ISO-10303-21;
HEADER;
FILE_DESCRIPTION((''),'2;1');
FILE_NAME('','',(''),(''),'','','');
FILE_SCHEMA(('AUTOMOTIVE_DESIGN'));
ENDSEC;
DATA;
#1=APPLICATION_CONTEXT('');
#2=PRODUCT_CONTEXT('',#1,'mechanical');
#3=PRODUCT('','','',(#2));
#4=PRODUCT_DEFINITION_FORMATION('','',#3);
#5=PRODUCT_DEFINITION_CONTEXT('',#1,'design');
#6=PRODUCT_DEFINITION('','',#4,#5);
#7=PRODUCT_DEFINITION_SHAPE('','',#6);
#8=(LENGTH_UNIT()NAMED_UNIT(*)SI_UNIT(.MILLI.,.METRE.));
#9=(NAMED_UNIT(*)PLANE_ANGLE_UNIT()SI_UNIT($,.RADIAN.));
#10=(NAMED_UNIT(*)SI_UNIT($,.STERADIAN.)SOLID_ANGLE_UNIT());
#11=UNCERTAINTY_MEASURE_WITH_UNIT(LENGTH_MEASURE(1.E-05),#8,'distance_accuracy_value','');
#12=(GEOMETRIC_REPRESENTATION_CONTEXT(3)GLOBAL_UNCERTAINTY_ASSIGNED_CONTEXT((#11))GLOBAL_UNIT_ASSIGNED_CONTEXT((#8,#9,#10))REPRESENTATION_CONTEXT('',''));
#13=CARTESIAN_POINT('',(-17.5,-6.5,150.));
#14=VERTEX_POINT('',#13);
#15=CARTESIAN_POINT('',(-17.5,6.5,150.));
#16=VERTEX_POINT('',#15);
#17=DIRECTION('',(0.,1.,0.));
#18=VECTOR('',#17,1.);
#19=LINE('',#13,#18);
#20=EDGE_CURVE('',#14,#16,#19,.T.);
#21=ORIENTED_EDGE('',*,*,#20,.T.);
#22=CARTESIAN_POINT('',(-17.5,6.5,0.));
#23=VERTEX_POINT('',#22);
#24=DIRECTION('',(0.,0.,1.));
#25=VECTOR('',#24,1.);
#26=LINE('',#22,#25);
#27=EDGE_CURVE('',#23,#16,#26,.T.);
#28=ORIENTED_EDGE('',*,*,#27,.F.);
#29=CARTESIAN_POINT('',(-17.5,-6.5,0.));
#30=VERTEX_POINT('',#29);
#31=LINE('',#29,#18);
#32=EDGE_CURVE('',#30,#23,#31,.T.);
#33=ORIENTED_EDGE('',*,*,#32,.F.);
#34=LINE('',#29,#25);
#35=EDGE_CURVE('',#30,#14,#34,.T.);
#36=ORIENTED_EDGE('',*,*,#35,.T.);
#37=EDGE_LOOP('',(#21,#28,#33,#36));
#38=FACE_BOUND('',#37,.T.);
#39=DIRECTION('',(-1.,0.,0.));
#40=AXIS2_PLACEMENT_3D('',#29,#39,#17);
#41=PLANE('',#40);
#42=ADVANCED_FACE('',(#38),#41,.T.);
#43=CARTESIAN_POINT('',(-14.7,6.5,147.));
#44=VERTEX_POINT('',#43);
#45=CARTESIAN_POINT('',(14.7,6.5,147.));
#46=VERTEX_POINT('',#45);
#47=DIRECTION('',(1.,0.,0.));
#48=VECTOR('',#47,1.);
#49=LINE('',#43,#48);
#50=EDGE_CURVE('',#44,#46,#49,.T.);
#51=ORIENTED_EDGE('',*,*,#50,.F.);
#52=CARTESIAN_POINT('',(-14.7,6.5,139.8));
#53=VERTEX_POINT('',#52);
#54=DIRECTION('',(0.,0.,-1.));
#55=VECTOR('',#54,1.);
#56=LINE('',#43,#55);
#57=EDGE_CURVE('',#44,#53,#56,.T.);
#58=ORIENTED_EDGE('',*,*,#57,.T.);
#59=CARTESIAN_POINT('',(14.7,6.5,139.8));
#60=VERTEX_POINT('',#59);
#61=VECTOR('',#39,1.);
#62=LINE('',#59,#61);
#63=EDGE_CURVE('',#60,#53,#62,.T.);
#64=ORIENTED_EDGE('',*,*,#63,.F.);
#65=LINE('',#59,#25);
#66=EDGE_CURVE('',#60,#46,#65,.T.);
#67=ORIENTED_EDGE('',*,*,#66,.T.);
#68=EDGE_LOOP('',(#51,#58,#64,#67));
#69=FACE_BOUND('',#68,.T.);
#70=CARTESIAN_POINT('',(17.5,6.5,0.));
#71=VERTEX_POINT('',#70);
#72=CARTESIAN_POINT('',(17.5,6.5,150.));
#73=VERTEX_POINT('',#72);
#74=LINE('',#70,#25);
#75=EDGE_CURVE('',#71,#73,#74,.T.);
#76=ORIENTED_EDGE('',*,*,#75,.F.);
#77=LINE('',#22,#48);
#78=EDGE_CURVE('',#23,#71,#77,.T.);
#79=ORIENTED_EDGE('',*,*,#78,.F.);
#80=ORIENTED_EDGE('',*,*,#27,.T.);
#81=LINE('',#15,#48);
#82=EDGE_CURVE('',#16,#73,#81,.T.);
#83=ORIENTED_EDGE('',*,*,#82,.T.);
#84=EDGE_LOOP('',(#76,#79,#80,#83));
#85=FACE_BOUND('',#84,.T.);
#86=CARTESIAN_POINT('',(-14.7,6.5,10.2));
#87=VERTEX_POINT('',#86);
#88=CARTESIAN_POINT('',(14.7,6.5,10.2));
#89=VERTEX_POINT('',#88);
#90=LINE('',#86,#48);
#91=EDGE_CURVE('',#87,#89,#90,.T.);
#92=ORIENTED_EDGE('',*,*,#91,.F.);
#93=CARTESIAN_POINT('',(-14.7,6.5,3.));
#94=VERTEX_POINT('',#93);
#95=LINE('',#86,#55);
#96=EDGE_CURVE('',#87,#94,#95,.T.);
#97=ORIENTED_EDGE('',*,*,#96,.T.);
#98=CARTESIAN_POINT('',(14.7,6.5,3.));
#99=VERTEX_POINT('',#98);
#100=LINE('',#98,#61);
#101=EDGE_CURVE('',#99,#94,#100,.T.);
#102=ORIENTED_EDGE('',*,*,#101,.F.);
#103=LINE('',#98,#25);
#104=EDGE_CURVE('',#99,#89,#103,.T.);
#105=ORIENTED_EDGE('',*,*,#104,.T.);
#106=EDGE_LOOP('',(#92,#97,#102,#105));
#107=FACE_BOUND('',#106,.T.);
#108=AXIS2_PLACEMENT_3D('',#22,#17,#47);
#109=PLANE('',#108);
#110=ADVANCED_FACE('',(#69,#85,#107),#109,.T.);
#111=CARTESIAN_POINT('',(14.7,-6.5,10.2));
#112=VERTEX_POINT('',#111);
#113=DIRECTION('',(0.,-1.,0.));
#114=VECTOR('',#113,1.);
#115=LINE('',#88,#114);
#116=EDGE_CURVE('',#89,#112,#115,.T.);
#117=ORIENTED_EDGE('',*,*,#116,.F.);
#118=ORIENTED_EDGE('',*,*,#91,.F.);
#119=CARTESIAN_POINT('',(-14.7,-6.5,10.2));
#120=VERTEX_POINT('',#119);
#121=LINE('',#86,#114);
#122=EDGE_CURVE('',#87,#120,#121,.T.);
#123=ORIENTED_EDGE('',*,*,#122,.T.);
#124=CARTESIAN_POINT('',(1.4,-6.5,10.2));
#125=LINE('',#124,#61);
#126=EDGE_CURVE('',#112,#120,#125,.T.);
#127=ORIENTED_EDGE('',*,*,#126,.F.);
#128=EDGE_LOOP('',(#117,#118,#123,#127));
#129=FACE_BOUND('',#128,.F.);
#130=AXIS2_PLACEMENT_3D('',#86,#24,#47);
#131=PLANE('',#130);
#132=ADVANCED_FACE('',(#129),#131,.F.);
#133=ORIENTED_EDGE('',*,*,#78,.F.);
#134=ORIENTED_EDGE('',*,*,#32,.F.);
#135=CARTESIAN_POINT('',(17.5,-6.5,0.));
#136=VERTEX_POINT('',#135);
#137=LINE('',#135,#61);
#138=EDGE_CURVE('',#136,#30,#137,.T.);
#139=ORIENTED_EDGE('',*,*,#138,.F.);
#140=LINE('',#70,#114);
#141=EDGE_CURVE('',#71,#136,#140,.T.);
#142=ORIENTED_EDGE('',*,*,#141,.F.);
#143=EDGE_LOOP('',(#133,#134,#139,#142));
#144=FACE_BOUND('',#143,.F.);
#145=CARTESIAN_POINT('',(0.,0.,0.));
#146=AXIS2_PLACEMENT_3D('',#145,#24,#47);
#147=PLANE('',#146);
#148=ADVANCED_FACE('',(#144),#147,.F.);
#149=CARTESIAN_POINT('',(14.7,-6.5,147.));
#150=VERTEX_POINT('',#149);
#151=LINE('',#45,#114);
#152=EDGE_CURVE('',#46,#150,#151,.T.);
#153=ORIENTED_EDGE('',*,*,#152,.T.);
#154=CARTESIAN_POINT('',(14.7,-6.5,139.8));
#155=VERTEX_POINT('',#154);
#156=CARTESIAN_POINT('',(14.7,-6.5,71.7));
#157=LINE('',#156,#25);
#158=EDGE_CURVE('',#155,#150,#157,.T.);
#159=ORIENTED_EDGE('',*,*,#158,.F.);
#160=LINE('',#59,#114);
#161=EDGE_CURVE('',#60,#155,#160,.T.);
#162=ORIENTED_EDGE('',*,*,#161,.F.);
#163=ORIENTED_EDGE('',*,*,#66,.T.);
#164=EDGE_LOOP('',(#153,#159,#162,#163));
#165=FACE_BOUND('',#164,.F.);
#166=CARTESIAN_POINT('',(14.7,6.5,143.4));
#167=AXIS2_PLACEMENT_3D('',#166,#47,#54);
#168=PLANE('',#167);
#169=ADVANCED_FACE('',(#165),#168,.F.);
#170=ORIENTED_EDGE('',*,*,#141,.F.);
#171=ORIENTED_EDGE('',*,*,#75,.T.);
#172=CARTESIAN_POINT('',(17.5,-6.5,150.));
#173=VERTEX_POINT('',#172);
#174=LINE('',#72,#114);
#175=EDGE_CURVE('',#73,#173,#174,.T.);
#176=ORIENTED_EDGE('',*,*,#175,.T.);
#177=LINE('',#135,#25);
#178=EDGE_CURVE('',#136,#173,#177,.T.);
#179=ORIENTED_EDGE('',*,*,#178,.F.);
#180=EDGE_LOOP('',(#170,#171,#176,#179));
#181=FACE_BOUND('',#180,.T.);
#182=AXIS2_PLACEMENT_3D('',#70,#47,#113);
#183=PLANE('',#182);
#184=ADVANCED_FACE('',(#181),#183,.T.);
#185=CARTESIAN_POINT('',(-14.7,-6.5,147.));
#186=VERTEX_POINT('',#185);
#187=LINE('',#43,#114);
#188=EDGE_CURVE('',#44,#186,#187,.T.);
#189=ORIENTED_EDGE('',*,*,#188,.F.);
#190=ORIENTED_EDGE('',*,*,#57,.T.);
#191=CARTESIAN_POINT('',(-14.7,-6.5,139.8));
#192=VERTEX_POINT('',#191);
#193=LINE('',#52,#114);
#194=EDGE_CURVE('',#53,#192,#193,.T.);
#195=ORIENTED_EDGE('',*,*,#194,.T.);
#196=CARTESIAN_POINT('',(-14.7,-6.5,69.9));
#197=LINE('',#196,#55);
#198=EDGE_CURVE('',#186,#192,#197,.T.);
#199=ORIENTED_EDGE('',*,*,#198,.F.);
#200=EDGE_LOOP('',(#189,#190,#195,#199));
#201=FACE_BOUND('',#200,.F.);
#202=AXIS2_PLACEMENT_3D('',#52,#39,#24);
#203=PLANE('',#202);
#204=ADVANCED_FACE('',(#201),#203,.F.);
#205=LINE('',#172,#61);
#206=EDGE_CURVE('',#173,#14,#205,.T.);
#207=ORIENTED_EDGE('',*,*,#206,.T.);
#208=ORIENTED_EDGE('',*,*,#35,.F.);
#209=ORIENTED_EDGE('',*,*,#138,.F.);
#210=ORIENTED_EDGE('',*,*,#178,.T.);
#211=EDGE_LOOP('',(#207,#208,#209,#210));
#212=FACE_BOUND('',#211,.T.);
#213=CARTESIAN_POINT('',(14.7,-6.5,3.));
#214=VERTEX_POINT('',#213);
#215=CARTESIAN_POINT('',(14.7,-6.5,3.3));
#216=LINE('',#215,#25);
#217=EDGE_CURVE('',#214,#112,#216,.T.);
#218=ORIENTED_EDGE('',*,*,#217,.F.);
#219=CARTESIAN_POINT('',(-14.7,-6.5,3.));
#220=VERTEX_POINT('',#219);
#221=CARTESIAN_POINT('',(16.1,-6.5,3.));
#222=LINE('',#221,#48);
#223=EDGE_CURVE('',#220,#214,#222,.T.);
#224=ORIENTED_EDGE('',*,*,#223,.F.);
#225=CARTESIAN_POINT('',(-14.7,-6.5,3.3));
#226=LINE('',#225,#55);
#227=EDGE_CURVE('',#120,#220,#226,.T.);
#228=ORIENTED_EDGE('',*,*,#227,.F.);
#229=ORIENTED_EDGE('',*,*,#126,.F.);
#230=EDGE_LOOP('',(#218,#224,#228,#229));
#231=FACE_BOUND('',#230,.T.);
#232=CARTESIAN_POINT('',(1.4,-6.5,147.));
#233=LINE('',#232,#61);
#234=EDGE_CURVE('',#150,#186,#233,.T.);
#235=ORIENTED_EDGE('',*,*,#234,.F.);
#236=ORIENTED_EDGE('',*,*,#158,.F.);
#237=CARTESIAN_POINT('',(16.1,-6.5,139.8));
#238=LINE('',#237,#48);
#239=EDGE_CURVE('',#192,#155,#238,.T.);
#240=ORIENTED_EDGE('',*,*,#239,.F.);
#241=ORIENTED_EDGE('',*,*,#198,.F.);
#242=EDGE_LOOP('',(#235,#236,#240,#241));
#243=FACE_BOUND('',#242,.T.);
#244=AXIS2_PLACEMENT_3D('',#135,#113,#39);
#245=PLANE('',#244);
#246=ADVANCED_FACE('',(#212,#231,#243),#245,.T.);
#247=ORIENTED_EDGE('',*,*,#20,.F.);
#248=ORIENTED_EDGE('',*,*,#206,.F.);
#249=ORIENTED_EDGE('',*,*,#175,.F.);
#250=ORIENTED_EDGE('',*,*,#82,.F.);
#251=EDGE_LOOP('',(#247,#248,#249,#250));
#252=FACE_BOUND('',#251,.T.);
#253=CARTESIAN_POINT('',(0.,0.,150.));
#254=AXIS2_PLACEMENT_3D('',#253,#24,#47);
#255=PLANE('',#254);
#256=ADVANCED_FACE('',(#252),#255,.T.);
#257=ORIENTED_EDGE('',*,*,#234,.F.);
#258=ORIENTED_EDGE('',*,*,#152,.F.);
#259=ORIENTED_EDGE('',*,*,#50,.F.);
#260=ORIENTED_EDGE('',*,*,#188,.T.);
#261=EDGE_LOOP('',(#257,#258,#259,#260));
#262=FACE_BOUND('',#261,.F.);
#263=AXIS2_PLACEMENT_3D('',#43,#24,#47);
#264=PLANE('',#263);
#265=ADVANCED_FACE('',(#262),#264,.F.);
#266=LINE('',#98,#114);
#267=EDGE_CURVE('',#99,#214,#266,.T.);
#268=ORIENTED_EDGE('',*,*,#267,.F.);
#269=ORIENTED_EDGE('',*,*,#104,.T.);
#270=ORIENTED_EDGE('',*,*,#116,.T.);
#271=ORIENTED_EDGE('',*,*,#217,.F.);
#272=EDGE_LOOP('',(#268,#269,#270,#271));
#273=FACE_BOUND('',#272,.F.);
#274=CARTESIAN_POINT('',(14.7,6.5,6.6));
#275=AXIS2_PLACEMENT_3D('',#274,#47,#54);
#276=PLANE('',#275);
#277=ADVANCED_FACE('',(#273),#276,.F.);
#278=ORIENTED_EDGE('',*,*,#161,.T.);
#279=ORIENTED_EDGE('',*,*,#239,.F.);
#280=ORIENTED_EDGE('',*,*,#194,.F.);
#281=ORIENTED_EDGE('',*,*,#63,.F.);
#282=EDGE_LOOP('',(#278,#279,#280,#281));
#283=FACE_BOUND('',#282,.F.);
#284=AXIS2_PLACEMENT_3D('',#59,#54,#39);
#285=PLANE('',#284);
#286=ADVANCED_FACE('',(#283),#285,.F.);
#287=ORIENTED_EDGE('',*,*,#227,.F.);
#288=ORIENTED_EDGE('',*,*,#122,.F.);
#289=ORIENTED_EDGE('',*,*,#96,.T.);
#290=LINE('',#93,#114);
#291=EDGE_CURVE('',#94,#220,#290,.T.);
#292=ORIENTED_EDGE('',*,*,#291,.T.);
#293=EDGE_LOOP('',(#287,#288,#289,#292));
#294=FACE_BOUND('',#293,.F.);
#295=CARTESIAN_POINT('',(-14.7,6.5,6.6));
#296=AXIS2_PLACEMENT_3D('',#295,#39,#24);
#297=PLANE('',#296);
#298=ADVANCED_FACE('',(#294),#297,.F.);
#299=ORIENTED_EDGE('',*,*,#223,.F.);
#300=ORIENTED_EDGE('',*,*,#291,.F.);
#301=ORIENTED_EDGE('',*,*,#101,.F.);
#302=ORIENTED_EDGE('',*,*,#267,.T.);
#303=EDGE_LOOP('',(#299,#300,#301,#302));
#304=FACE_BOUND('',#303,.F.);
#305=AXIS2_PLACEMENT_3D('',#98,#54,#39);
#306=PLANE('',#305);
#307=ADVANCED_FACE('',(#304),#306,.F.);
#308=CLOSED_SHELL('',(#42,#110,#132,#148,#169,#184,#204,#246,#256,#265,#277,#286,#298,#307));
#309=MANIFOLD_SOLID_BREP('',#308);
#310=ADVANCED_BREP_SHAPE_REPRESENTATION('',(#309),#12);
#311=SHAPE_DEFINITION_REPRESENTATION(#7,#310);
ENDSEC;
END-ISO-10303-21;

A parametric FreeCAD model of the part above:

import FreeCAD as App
import Part
import Sketcher
from FreeCAD import Vector

doc = App.newDocument("Part")
body = doc.addObject("PartDesign::Body", "Body")

# Sketch on XY plane
sketch1 = body.newObject("Sketcher::SketchObject", "Sketch")
sketch1.AttachmentSupport = (doc.getObject("XY_Plane"), [""])
sketch1.MapMode = "FlatFace"
sketch1.addGeometry(Part.LineSegment(Vector(18, 6, 0), Vector(-18, 6, 0)), False)
sketch1.addGeometry(Part.LineSegment(Vector(-18, 6, 0), Vector(-18, -6, 0)), False)
sketch1.addGeometry(Part.LineSegment(Vector(-18, -6, 0), Vector(18, -6, 0)), False)
sketch1.addGeometry(Part.LineSegment(Vector(18, -6, 0), Vector(18, 6, 0)), False)
sketch1.addConstraint(Sketcher.Constraint("Coincident", 0, 2, 1, 1))
sketch1.addConstraint(Sketcher.Constraint("Coincident", 1, 2, 2, 1))
sketch1.addConstraint(Sketcher.Constraint("Coincident", 2, 2, 3, 1))
sketch1.addConstraint(Sketcher.Constraint("Coincident", 3, 2, 0, 1))
sketch1.addConstraint(Sketcher.Constraint("Horizontal", 0))
sketch1.addConstraint(Sketcher.Constraint("Vertical", 1))
sketch1.addConstraint(Sketcher.Constraint("Horizontal", 2))
sketch1.addConstraint(Sketcher.Constraint("Vertical", 3))
sketch1.addConstraint(Sketcher.Constraint("Symmetric", 0, 2, 2, 2, -1, 1))
sketch1.addConstraint(Sketcher.Constraint("DistanceX", 0, 2, 0, 1, 35.0))
sketch1.addConstraint(Sketcher.Constraint("DistanceY", 1, 2, 1, 1, 13.0))
pad1 = body.newObject("PartDesign::Pad", "Pad")
pad1.Profile = sketch1
pad1.Length = 150

# Sketch on XZ plane
sketch2 = body.newObject("Sketcher::SketchObject", "Sketch001")
sketch2.AttachmentSupport = (doc.getObject("XZ_Plane"), [""])
sketch2.MapMode = "FlatFace"
sketch2.AttachmentOffset = App.Placement(Vector(0, 0, -6.5), App.Rotation())
sketch2.addGeometry(Part.LineSegment(Vector(-15, 3, 0), Vector(-15, 10, 0)), False)
sketch2.addGeometry(Part.LineSegment(Vector(-15, 10, 0), Vector(15, 10, 0)), False)
sketch2.addGeometry(Part.LineSegment(Vector(15, 10, 0), Vector(15, 3, 0)), False)
sketch2.addGeometry(Part.LineSegment(Vector(15, 3, 0), Vector(-15, 3, 0)), False)
sketch2.addGeometry(Part.LineSegment(Vector(-15, 140, 0), Vector(-15, 147, 0)), False)
sketch2.addGeometry(Part.LineSegment(Vector(-15, 147, 0), Vector(15, 147, 0)), False)
sketch2.addGeometry(Part.LineSegment(Vector(15, 147, 0), Vector(15, 140, 0)), False)
sketch2.addGeometry(Part.LineSegment(Vector(15, 140, 0), Vector(-15, 140, 0)), False)
sketch2.addConstraint(Sketcher.Constraint("Coincident", 0, 2, 1, 1))
sketch2.addConstraint(Sketcher.Constraint("Coincident", 1, 2, 2, 1))
sketch2.addConstraint(Sketcher.Constraint("Coincident", 2, 2, 3, 1))
sketch2.addConstraint(Sketcher.Constraint("Coincident", 3, 2, 0, 1))
sketch2.addConstraint(Sketcher.Constraint("Coincident", 4, 2, 5, 1))
sketch2.addConstraint(Sketcher.Constraint("Coincident", 5, 2, 6, 1))
sketch2.addConstraint(Sketcher.Constraint("Coincident", 6, 2, 7, 1))
sketch2.addConstraint(Sketcher.Constraint("Coincident", 7, 2, 4, 1))
sketch2.addConstraint(Sketcher.Constraint("Vertical", 0))
sketch2.addConstraint(Sketcher.Constraint("Horizontal", 1))
sketch2.addConstraint(Sketcher.Constraint("Vertical", 2))
sketch2.addConstraint(Sketcher.Constraint("Horizontal", 3))
sketch2.addConstraint(Sketcher.Constraint("Vertical", 4))
sketch2.addConstraint(Sketcher.Constraint("Horizontal", 5))
sketch2.addConstraint(Sketcher.Constraint("Vertical", 6))
sketch2.addConstraint(Sketcher.Constraint("Horizontal", 7))
sketch2.addConstraint(Sketcher.Constraint("Vertical", 3, 2, 4, 2))
sketch2.addConstraint(Sketcher.Constraint("Vertical", 2, 2, 5, 2))
sketch2.addConstraint(Sketcher.Constraint("Equal", 2, 4))
sketch2.addConstraint(Sketcher.Constraint("DistanceX", 1, 1, 1, 2, 29.4))
sketch2.addConstraint(Sketcher.Constraint("DistanceY", 0, 1, 0, 2, 7.2))
sketch2.addConstraint(Sketcher.Constraint("DistanceY", -1, 1, 2, 2, 3.0))
sketch2.addConstraint(Sketcher.Constraint("DistanceY", -1, 1, 4, 2, 147.0))
sketch2.addConstraint(Sketcher.Constraint("DistanceX", 0, 2, -1, 1, 14.7))
pocket1 = body.newObject("PartDesign::Pocket", "Pocket")
pocket1.Profile = sketch2
pocket1.Type = "ThroughAll"
pocket1.Reversed = True

doc.recompute()
